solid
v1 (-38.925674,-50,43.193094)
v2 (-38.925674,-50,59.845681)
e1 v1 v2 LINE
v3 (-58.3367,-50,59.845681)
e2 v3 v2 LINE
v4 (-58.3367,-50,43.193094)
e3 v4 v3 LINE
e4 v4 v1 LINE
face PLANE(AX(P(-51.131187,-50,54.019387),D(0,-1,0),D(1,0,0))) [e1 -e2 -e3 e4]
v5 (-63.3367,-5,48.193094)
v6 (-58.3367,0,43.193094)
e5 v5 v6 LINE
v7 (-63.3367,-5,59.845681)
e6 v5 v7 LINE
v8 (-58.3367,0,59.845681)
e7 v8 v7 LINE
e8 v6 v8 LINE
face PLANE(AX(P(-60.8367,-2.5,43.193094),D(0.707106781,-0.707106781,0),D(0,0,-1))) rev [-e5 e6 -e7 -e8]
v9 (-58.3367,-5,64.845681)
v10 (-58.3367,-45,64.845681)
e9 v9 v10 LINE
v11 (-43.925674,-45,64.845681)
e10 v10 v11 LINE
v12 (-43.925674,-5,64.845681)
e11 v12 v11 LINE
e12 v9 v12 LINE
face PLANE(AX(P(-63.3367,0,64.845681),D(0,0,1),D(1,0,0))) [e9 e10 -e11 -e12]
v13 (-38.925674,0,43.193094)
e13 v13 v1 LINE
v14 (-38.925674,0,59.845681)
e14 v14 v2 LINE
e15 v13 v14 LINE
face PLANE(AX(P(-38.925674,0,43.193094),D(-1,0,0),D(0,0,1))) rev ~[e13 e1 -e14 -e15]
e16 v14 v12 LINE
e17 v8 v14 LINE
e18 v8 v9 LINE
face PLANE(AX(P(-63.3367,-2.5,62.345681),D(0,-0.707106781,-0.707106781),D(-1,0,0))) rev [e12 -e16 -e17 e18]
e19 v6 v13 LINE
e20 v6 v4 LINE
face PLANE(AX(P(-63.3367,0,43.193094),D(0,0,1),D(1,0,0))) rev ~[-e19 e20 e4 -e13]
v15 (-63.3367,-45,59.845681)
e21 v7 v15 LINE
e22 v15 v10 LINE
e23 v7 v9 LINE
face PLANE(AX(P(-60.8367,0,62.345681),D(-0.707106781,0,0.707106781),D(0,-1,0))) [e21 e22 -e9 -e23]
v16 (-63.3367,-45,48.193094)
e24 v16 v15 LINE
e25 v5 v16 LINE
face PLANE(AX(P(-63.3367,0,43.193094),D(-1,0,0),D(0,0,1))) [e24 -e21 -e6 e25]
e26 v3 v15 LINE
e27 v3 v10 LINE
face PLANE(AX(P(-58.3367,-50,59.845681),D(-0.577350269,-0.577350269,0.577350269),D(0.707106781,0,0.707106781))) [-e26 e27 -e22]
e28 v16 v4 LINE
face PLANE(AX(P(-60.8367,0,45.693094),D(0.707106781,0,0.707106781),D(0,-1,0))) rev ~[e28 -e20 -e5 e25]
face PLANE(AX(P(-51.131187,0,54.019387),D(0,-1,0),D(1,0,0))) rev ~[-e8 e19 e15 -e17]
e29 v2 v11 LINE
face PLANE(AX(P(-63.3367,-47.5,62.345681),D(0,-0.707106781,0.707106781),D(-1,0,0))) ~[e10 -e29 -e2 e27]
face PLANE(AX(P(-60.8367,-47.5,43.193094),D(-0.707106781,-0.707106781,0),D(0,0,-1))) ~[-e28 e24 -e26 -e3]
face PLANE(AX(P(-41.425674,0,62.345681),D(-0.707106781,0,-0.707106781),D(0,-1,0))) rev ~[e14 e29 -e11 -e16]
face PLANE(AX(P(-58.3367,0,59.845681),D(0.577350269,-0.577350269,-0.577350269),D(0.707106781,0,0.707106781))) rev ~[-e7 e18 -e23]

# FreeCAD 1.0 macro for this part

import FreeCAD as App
import Part
import Sketcher

V = App.Vector


def edges_at(feature, points):
    """Names of the edges that pass closest to the given points."""
    edges = feature.Shape.Edges
    near = lambda p: min(range(len(edges)), key=lambda i: edges[i].distToShape(Part.Vertex(*p))[0])
    return sorted({f"Edge{near(p) + 1}" for p in points})

doc = App.newDocument("Part")
body = doc.addObject("PartDesign::Body", "Body")

# Sketch on XZ plane
sketch1 = body.newObject("Sketcher::SketchObject", "Sketch")
sketch1.AttachmentSupport = (doc.getObject("XZ_Plane"), [""])
sketch1.MapMode = "FlatFace"
sketch1.addGeometry(Part.LineSegment(V(-63, 65, 0), V(-63, 43, 0)), False)
sketch1.addGeometry(Part.LineSegment(V(-63, 43, 0), V(-39, 43, 0)), False)
sketch1.addGeometry(Part.LineSegment(V(-39, 43, 0), V(-39, 65, 0)), False)
sketch1.addGeometry(Part.LineSegment(V(-39, 65, 0), V(-63, 65, 0)), False)
sketch1.addConstraint(Sketcher.Constraint("Coincident", 0, 2, 1, 1))
sketch1.addConstraint(Sketcher.Constraint("Coincident", 1, 2, 2, 1))
sketch1.addConstraint(Sketcher.Constraint("Coincident", 2, 2, 3, 1))
sketch1.addConstraint(Sketcher.Constraint("Coincident", 3, 2, 0, 1))
sketch1.addConstraint(Sketcher.Constraint("Vertical", 0))
sketch1.addConstraint(Sketcher.Constraint("Horizontal", 1))
sketch1.addConstraint(Sketcher.Constraint("Vertical", 2))
sketch1.addConstraint(Sketcher.Constraint("Horizontal", 3))
sketch1.addConstraint(Sketcher.Constraint("DistanceX", 0, 2, -1, 1, 63.3367))
sketch1.addConstraint(Sketcher.Constraint("DistanceX", 1, 1, 1, 2, 24.411026))
sketch1.addConstraint(Sketcher.Constraint("DistanceY", 0, 2, 0, 1, 21.652587))
sketch1.addConstraint(Sketcher.Constraint("DistanceY", -1, 1, 2, 2, 64.845681))
pad1 = body.newObject("PartDesign::Pad", "Pad")
pad1.Profile = sketch1
pad1.Length = 50
doc.recompute()

chamfer = body.newObject("PartDesign::Chamfer", "Chamfer")
chamfer.Base = (pad1, edges_at(pad1, [
    (-63.337, -25, 64.846),
    (-63.337, -25, 43.193),
    (-63.337, 0, 54.019),
    (-63.337, -50, 54.019),
    (-38.926, -25, 64.846),
    (-51.131, 0, 64.846),
    (-51.131, -50, 64.846),
]))
chamfer.Size = 5

doc.recompute()
